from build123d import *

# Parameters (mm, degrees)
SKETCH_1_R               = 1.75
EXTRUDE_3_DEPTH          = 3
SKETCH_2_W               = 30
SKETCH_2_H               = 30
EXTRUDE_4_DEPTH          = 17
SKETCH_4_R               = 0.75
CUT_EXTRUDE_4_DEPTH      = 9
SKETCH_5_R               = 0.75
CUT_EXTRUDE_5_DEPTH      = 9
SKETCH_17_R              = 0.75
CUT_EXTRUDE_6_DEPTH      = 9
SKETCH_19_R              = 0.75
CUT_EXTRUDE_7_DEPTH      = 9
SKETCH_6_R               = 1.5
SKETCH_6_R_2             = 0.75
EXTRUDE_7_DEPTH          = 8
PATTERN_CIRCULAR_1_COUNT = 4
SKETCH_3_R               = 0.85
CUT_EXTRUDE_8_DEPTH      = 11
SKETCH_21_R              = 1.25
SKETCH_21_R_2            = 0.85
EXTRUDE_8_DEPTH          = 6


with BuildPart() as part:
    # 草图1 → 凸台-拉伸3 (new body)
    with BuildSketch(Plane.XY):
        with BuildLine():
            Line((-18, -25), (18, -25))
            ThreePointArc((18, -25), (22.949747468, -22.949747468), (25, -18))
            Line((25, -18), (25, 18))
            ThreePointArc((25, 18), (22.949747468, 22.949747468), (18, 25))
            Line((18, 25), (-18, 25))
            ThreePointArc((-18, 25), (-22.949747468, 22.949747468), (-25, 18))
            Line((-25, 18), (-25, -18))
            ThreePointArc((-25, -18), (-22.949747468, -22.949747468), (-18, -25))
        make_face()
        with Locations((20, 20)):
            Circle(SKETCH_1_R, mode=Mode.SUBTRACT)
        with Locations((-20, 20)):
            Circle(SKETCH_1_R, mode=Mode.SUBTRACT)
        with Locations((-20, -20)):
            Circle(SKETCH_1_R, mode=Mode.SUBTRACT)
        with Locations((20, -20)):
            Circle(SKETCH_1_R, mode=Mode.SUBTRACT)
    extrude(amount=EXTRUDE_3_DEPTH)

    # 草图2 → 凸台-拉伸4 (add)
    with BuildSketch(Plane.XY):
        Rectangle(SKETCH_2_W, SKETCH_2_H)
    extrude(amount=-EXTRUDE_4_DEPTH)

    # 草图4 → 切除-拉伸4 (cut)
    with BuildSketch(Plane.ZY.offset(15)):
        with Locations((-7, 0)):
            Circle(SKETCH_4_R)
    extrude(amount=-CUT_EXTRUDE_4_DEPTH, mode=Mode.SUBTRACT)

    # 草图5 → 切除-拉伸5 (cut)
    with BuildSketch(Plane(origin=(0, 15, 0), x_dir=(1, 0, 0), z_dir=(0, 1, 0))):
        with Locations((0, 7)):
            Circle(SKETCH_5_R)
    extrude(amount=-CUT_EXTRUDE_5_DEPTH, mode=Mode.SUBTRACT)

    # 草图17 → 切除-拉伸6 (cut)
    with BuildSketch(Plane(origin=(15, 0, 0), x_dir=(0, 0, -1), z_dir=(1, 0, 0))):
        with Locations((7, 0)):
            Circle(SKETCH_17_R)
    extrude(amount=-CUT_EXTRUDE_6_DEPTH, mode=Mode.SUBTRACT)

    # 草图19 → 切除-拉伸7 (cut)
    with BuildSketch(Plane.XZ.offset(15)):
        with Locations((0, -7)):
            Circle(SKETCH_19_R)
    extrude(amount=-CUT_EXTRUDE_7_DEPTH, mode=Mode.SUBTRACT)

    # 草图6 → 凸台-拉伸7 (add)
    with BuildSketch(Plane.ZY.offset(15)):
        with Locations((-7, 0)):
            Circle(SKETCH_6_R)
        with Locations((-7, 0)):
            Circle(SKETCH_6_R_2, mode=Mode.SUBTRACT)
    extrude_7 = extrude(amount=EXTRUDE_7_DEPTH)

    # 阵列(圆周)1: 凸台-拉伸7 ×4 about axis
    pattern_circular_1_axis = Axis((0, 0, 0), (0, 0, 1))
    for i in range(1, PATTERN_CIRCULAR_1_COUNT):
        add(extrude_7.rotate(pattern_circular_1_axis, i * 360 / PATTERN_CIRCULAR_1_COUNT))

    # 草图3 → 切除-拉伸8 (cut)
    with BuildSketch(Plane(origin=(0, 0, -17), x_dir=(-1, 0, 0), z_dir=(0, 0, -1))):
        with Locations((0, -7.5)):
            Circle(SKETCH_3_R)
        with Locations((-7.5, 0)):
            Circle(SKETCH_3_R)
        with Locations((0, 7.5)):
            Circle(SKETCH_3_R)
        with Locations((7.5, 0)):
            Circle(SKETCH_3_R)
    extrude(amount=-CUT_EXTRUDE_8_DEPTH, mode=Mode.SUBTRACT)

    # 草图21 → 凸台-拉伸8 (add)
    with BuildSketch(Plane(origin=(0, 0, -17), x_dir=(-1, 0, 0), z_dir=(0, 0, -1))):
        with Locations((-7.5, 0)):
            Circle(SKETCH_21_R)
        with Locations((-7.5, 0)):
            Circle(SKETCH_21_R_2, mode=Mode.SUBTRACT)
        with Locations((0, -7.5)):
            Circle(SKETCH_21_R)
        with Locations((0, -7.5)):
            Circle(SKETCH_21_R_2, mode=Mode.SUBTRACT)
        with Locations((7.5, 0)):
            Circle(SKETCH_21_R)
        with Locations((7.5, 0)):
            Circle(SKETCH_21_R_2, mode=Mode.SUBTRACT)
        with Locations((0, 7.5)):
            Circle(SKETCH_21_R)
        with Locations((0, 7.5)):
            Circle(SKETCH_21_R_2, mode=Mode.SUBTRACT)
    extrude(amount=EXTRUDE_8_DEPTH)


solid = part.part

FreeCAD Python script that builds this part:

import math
import FreeCAD as App
import Part
import Sketcher
from FreeCAD import Vector
Q = App.Units.Quantity

doc = App.newDocument("Part")
body = doc.addObject("PartDesign::Body", "Body")

# Sketch on XY plane
sketch1 = body.newObject("Sketcher::SketchObject", "Sketch")
sketch1.AttachmentSupport = (doc.getObject("XY_Plane"), [""])
sketch1.MapMode = "FlatFace"
sketch1.addGeometry([
    Part.LineSegment(Vector(-18, -25, 0), Vector(18, -25, 0)),  # 0
    Part.ArcOfCircle(Part.Circle(Vector(18, -18, 0), Vector(0, 0, 1), 7), math.radians(-90), math.radians(0)),  # 1
    Part.LineSegment(Vector(25, -18, 0), Vector(25, 18, 0)),  # 2
    Part.ArcOfCircle(Part.Circle(Vector(18, 18, 0), Vector(0, 0, 1), 7), math.radians(0), math.radians(90)),  # 3
    Part.LineSegment(Vector(18, 25, 0), Vector(-18, 25, 0)),  # 4
    Part.ArcOfCircle(Part.Circle(Vector(-18, 18, 0), Vector(0, 0, 1), 7), math.radians(90), math.radians(180)),  # 5
    Part.LineSegment(Vector(-25, 18, 0), Vector(-25, -18, 0)),  # 6
    Part.ArcOfCircle(Part.Circle(Vector(-18, -18, 0), Vector(0, 0, 1), 7), math.radians(-180), math.radians(-90)),  # 7
    Part.Circle(Vector(-20, -20, 0), Vector(0, 0, 1), 1.8),  # 8
    Part.Circle(Vector(20, -20, 0), Vector(0, 0, 1), 1.8),  # 9
    Part.Circle(Vector(-20, 20, 0), Vector(0, 0, 1), 1.8),  # 10
    Part.Circle(Vector(20, 20, 0), Vector(0, 0, 1), 1.8),  # 11
], False)
sketch1.addConstraint([
    Sketcher.Constraint("Tangent", 0, 2, 1, 1),
    Sketcher.Constraint("Tangent", 1, 2, 2, 1),
    Sketcher.Constraint("Tangent", 2, 2, 3, 1),
    Sketcher.Constraint("Tangent", 3, 2, 4, 1),
    Sketcher.Constraint("Tangent", 4, 2, 5, 1),
    Sketcher.Constraint("Tangent", 5, 2, 6, 1),
    Sketcher.Constraint("Tangent", 6, 2, 7, 1),
    Sketcher.Constraint("Tangent", 7, 2, 0, 1),
    Sketcher.Constraint("Horizontal", 0),
    Sketcher.Constraint("Vertical", 2),
    Sketcher.Constraint("Horizontal", 4),
    Sketcher.Constraint("Vertical", 6),
    Sketcher.Constraint("Equal", 1, 3),
    Sketcher.Constraint("Equal", 3, 5),
    Sketcher.Constraint("Equal", 5, 7),
    Sketcher.Constraint("Equal", 8, 9),
    Sketcher.Constraint("Equal", 9, 10),
    Sketcher.Constraint("Equal", 10, 11),
    Sketcher.Constraint("Symmetric", 1, 3, 5, 3, -1, 1),
    Sketcher.Constraint("Symmetric", 9, 3, 10, 3, -1, 1),
    Sketcher.Constraint("Symmetric", 8, 3, 11, 3, -1, 1),
    Sketcher.Constraint("Symmetric", 8, 3, 9, 3, -2),
    Sketcher.Constraint("Equal", 4, 2),
    Sketcher.Constraint("Radius", 1, Q("7 mm")),
    Sketcher.Constraint("Diameter", 8, Q("3.5 mm")),
    Sketcher.Constraint("DistanceX", 0, 1, 0, 2, Q("36 mm")),
    Sketcher.Constraint("DistanceX", 8, 3, -1, 1, Q("20 mm")),
    Sketcher.Constraint("DistanceY", 8, 3, -1, 1, Q("20 mm")),
])
pad1 = body.newObject("PartDesign::Pad", "Pad")
pad1.Profile = sketch1
pad1.Length = 3

# Sketch on XY plane
sketch2 = body.newObject("Sketcher::SketchObject", "Sketch001")
sketch2.AttachmentSupport = (doc.getObject("XY_Plane"), [""])
sketch2.MapMode = "FlatFace"
sketch2.addGeometry([
    Part.LineSegment(Vector(-15, 15, 0), Vector(-15, -15, 0)),
    Part.LineSegment(Vector(-15, -15, 0), Vector(15, -15, 0)),
    Part.LineSegment(Vector(15, -15, 0), Vector(15, 15, 0)),
    Part.LineSegment(Vector(15, 15, 0), Vector(-15, 15, 0)),
], False)
sketch2.addConstraint([
    Sketcher.Constraint("Coincident", 0, 2, 1, 1),
    Sketcher.Constraint("Coincident", 1, 2, 2, 1),
    Sketcher.Constraint("Coincident", 2, 2, 3, 1),
    Sketcher.Constraint("Coincident", 3, 2, 0, 1),
    Sketcher.Constraint("Vertical", 0),
    Sketcher.Constraint("Horizontal", 1),
    Sketcher.Constraint("Vertical", 2),
    Sketcher.Constraint("Horizontal", 3),
    Sketcher.Constraint("Symmetric", 0, 2, 2, 2, -1, 1),
    Sketcher.Constraint("Equal", 3, 0),
    Sketcher.Constraint("DistanceX", 1, 1, 1, 2, Q("30 mm")),
])
pad2 = body.newObject("PartDesign::Pad", "Pad001")
pad2.Profile = sketch2
pad2.Length = 17
pad2.Reversed = True

# Sketch on YZ plane
sketch3 = body.newObject("Sketcher::SketchObject", "Sketch002")
sketch3.AttachmentSupport = (doc.getObject("YZ_Plane"), [""])
sketch3.MapMode = "FlatFace"
sketch3.AttachmentOffset = App.Placement(Vector(0, 0, -15), App.Rotation())
sketch3.addGeometry(Part.Circle(Vector(0, -7, 0), Vector(0, 0, 1), 0.8), False)
sketch3.addConstraint([
    Sketcher.Constraint("PointOnObject", 0, 3, -2),
    Sketcher.Constraint("Diameter", 0, Q("1.5 mm")),
    Sketcher.Constraint("DistanceY", 0, 3, -1, 1, Q("7 mm")),
])
pocket1 = body.newObject("PartDesign::Pocket", "Pocket")
pocket1.Profile = sketch3
pocket1.Length = 9
pocket1.Reversed = True

# Sketch on XZ plane
sketch4 = body.newObject("Sketcher::SketchObject", "Sketch003")
sketch4.AttachmentSupport = (doc.getObject("XZ_Plane"), [""])
sketch4.MapMode = "FlatFace"
sketch4.AttachmentOffset = App.Placement(Vector(0, 0, -15), App.Rotation())
sketch4.addGeometry(Part.Circle(Vector(0, -7, 0), Vector(0, 0, 1), 0.8), False)
sketch4.addConstraint([
    Sketcher.Constraint("PointOnObject", 0, 3, -2),
    Sketcher.Constraint("Diameter", 0, Q("1.5 mm")),
    Sketcher.Constraint("DistanceY", 0, 3, -1, 1, Q("7 mm")),
])
pocket2 = body.newObject("PartDesign::Pocket", "Pocket001")
pocket2.Profile = sketch4
pocket2.Length = 9
pocket2.Reversed = True

# Sketch on YZ plane
sketch5 = body.newObject("Sketcher::SketchObject", "Sketch004")
sketch5.AttachmentSupport = (doc.getObject("YZ_Plane"), [""])
sketch5.MapMode = "FlatFace"
sketch5.AttachmentOffset = App.Placement(Vector(0, 0, 15), App.Rotation())
sketch5.addGeometry(Part.Circle(Vector(0, -7, 0), Vector(0, 0, 1), 0.8), False)
sketch5.addConstraint([
    Sketcher.Constraint("PointOnObject", 0, 3, -2),
    Sketcher.Constraint("Diameter", 0, Q("1.5 mm")),
    Sketcher.Constraint("DistanceY", 0, 3, -1, 1, Q("7 mm")),
])
pocket3 = body.newObject("PartDesign::Pocket", "Pocket002")
pocket3.Profile = sketch5
pocket3.Length = 9

# Sketch on XZ plane
sketch6 = body.newObject("Sketcher::SketchObject", "Sketch005")
sketch6.AttachmentSupport = (doc.getObject("XZ_Plane"), [""])
sketch6.MapMode = "FlatFace"
sketch6.AttachmentOffset = App.Placement(Vector(0, 0, 15), App.Rotation())
sketch6.addGeometry(Part.Circle(Vector(0, -7, 0), Vector(0, 0, 1), 0.8), False)
sketch6.addConstraint([
    Sketcher.Constraint("PointOnObject", 0, 3, -2),
    Sketcher.Constraint("Diameter", 0, Q("1.5 mm")),
    Sketcher.Constraint("DistanceY", 0, 3, -1, 1, Q("7 mm")),
])
pocket4 = body.newObject("PartDesign::Pocket", "Pocket003")
pocket4.Profile = sketch6
pocket4.Length = 9

# Sketch on YZ plane
sketch7 = body.newObject("Sketcher::SketchObject", "Sketch006")
sketch7.AttachmentSupport = (doc.getObject("YZ_Plane"), [""])
sketch7.MapMode = "FlatFace"
sketch7.AttachmentOffset = App.Placement(Vector(0, 0, -15), App.Rotation())
sketch7.addGeometry([
    Part.Circle(Vector(0, -7, 0), Vector(0, 0, 1), 1.5),
    Part.Circle(Vector(0, -7, 0), Vector(0, 0, 1), 0.8),
], False)
sketch7.addConstraint([
    Sketcher.Constraint("Coincident", 1, 3, 0, 3),
    Sketcher.Constraint("PointOnObject", 0, 3, -2),
    Sketcher.Constraint("Diameter", 0, Q("3 mm")),
    Sketcher.Constraint("Diameter", 1, Q("1.5 mm")),
    Sketcher.Constraint("DistanceY", 0, 3, -1, 1, Q("7 mm")),
])
pad3 = body.newObject("PartDesign::Pad", "Pad002")
pad3.Profile = sketch7
pad3.Length = 8
pad3.Reversed = True
doc.recompute()

polarpattern = body.newObject("PartDesign::PolarPattern", "PolarPattern")
polarpattern.Originals = [pad3]
polarpattern.Axis = (doc.getObject("Z_Axis"), [""])
polarpattern.Angle = 360
polarpattern.Occurrences = 4
body.Tip = polarpattern

# Sketch on XY plane
sketch8 = body.newObject("Sketcher::SketchObject", "Sketch007")
sketch8.AttachmentSupport = (doc.getObject("XY_Plane"), [""])
sketch8.MapMode = "FlatFace"
sketch8.AttachmentOffset = App.Placement(Vector(0, 0, -17), App.Rotation())
sketch8.addGeometry([
    Part.Circle(Vector(0, -7.5, 0), Vector(0, 0, 1), 0.8),
    Part.Circle(Vector(7.5, 0, 0), Vector(0, 0, 1), 0.8),
    Part.Circle(Vector(0, 7.5, 0), Vector(0, 0, 1), 0.8),
    Part.Circle(Vector(-7.5, 0, 0), Vector(0, 0, 1), 0.8),
], False)
sketch8.addConstraint([
    Sketcher.Constraint("Equal", 0, 1),
    Sketcher.Constraint("Equal", 1, 2),
    Sketcher.Constraint("Equal", 2, 3),
    Sketcher.Constraint("Symmetric", 0, 3, 2, 3, -1, 1),
    Sketcher.Constraint("Symmetric", 1, 3, 3, 3, -1, 1),
    Sketcher.Constraint("PointOnObject", 0, 3, -2),
    Sketcher.Constraint("PointOnObject", 1, 3, -1),
    Sketcher.Constraint("Diameter", 0, Q("1.7 mm")),
    Sketcher.Constraint("DistanceY", 0, 3, 2, 3, Q("15 mm")),
    Sketcher.Constraint("DistanceX", 3, 3, 1, 3, Q("15 mm")),
])
pocket5 = body.newObject("PartDesign::Pocket", "Pocket004")
pocket5.Profile = sketch8
pocket5.Length = 11
pocket5.Reversed = True

# Sketch on XY plane
sketch9 = body.newObject("Sketcher::SketchObject", "Sketch008")
sketch9.AttachmentSupport = (doc.getObject("XY_Plane"), [""])
sketch9.MapMode = "FlatFace"
sketch9.AttachmentOffset = App.Placement(Vector(0, 0, -17), App.Rotation())
sketch9.addGeometry([
    Part.Circle(Vector(7.5, 0, 0), Vector(0, 0, 1), 1.2),  # 0
    Part.Circle(Vector(7.5, 0, 0), Vector(0, 0, 1), 0.8),  # 1
    Part.Circle(Vector(0, -7.5, 0), Vector(0, 0, 1), 1.2),  # 2
    Part.Circle(Vector(0, -7.5, 0), Vector(0, 0, 1), 0.8),  # 3
    Part.Circle(Vector(-7.5, 0, 0), Vector(0, 0, 1), 1.2),  # 4
    Part.Circle(Vector(-7.5, 0, 0), Vector(0, 0, 1), 0.8),  # 5
    Part.Circle(Vector(0, 7.5, 0), Vector(0, 0, 1), 1.2),  # 6
    Part.Circle(Vector(0, 7.5, 0), Vector(0, 0, 1), 0.8),  # 7
], False)
sketch9.addConstraint([
    Sketcher.Constraint("Coincident", 1, 3, 0, 3),
    Sketcher.Constraint("Coincident", 3, 3, 2, 3),
    Sketcher.Constraint("Coincident", 5, 3, 4, 3),
    Sketcher.Constraint("Coincident", 7, 3, 6, 3),
    Sketcher.Constraint("Equal", 0, 2),
    Sketcher.Constraint("Equal", 1, 3),
    Sketcher.Constraint("Equal", 2, 4),
    Sketcher.Constraint("Equal", 3, 5),
    Sketcher.Constraint("Equal", 4, 6),
    Sketcher.Constraint("Equal", 5, 7),
    Sketcher.Constraint("Symmetric", 0, 3, 4, 3, -1, 1),
    Sketcher.Constraint("Symmetric", 2, 3, 6, 3, -1, 1),
    Sketcher.Constraint("PointOnObject", 0, 3, -1),
    Sketcher.Constraint("PointOnObject", 2, 3, -2),
    Sketcher.Constraint("Diameter", 0, Q("2.5 mm")),
    Sketcher.Constraint("Diameter", 1, Q("1.7 mm")),
    Sketcher.Constraint("DistanceX", 4, 3, 0, 3, Q("15 mm")),
    Sketcher.Constraint("DistanceY", 2, 3, 6, 3, Q("15 mm")),
])
pad4 = body.newObject("PartDesign::Pad", "Pad003")
pad4.Profile = sketch9
pad4.Length = 6
pad4.Reversed = True

doc.recompute()
